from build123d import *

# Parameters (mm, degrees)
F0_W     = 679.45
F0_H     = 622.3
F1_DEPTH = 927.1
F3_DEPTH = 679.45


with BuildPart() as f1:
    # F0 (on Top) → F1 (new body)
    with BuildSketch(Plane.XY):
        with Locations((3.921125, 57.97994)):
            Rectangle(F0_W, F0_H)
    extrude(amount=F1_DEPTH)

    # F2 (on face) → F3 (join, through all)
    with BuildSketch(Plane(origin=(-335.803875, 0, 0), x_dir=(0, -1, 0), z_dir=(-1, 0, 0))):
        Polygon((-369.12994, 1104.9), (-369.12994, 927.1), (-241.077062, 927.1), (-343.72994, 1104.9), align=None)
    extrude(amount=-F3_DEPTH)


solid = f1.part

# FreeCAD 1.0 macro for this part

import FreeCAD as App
import Part
import Sketcher

V = App.Vector
Q = App.Units.Quantity

doc = App.newDocument("Part")
body = doc.addObject("PartDesign::Body", "Body")

# Sketch on XY plane
sketch1 = doc.addObject("Sketcher::SketchObject", "Sketch")
body.addObject(sketch1)
sketch1.AttachmentSupport = (doc.XY_Plane, [""])
sketch1.MapMode = "FlatFace"
sketch1.addGeometry(Part.LineSegment(V(-336, 369, 0), V(-336, -253, 0)), False)
sketch1.addGeometry(Part.LineSegment(V(-336, -253, 0), V(344, -253, 0)), False)
sketch1.addGeometry(Part.LineSegment(V(344, -253, 0), V(344, 369, 0)), False)
sketch1.addGeometry(Part.LineSegment(V(344, 369, 0), V(-336, 369, 0)), False)
sketch1.addConstraint(Sketcher.Constraint("Coincident", 0, 2, 1, 1))
sketch1.addConstraint(Sketcher.Constraint("Coincident", 1, 2, 2, 1))
sketch1.addConstraint(Sketcher.Constraint("Coincident", 2, 2, 3, 1))
sketch1.addConstraint(Sketcher.Constraint("Coincident", 3, 2, 0, 1))
sketch1.addConstraint(Sketcher.Constraint("Vertical", 0))
sketch1.addConstraint(Sketcher.Constraint("Horizontal", 1))
sketch1.addConstraint(Sketcher.Constraint("Vertical", 2))
sketch1.addConstraint(Sketcher.Constraint("Horizontal", 3))
sketch1.addConstraint(Sketcher.Constraint("DistanceY", 0, 2, 0, 1, Q("24.5 in")))
sketch1.addConstraint(Sketcher.Constraint("DistanceX", 1, 1, 1, 2, Q("26.75 in")))
sketch1.addConstraint(Sketcher.Constraint("DistanceY", 0, 2, -1, 1, Q("253.17006 mm")))
sketch1.addConstraint(Sketcher.Constraint("DistanceX", 0, 2, -1, 1, Q("335.803875 mm")))
pad1 = doc.addObject("PartDesign::Pad", "Pad")
body.addObject(pad1)
pad1.Profile = sketch1
pad1.Length = Q("36.5 in")

# Sketch on YZ plane
sketch2 = doc.addObject("Sketcher::SketchObject", "Sketch001")
body.addObject(sketch2)
sketch2.AttachmentSupport = (doc.YZ_Plane, [""])
sketch2.MapMode = "FlatFace"
sketch2.AttachmentOffset = App.Placement(V(0, 0, -335.803875), App.Rotation())
sketch2.addGeometry(Part.LineSegment(V(369, 1105, 0), V(369, 927, 0)), False)
sketch2.addGeometry(Part.LineSegment(V(369, 927, 0), V(241, 927, 0)), False)
sketch2.addGeometry(Part.LineSegment(V(241, 927, 0), V(344, 1105, 0)), False)
sketch2.addGeometry(Part.LineSegment(V(344, 1105, 0), V(369, 1105, 0)), False)
sketch2.addConstraint(Sketcher.Constraint("Coincident", 0, 2, 1, 1))
sketch2.addConstraint(Sketcher.Constraint("Coincident", 1, 2, 2, 1))
sketch2.addConstraint(Sketcher.Constraint("Coincident", 2, 2, 3, 1))
sketch2.addConstraint(Sketcher.Constraint("Coincident", 3, 2, 0, 1))
sketch2.addConstraint(Sketcher.Constraint("Vertical", 0))
sketch2.addConstraint(Sketcher.Constraint("Horizontal", 1))
sketch2.addConstraint(Sketcher.Constraint("Horizontal", 3))
sketch2.addConstraint(Sketcher.Constraint("DistanceX", 3, 1, 3, 2, Q("1 in")))
sketch2.addConstraint(Sketcher.Constraint("DistanceY", 0, 2, 0, 1, Q("7 in")))
sketch2.addConstraint(Sketcher.Constraint("Angle", 2, Q("60 deg")))
sketch2.addConstraint(Sketcher.Constraint("DistanceY", -1, 1, 0, 2, Q("36.5 in")))
sketch2.addConstraint(Sketcher.Constraint("DistanceX", -1, 1, 0, 2, Q("369.12994 mm")))
pad2 = doc.addObject("PartDesign::Pad", "Pad001")
body.addObject(pad2)
pad2.Profile = sketch2
pad2.Length = Q("26.75 in")

doc.recompute()
